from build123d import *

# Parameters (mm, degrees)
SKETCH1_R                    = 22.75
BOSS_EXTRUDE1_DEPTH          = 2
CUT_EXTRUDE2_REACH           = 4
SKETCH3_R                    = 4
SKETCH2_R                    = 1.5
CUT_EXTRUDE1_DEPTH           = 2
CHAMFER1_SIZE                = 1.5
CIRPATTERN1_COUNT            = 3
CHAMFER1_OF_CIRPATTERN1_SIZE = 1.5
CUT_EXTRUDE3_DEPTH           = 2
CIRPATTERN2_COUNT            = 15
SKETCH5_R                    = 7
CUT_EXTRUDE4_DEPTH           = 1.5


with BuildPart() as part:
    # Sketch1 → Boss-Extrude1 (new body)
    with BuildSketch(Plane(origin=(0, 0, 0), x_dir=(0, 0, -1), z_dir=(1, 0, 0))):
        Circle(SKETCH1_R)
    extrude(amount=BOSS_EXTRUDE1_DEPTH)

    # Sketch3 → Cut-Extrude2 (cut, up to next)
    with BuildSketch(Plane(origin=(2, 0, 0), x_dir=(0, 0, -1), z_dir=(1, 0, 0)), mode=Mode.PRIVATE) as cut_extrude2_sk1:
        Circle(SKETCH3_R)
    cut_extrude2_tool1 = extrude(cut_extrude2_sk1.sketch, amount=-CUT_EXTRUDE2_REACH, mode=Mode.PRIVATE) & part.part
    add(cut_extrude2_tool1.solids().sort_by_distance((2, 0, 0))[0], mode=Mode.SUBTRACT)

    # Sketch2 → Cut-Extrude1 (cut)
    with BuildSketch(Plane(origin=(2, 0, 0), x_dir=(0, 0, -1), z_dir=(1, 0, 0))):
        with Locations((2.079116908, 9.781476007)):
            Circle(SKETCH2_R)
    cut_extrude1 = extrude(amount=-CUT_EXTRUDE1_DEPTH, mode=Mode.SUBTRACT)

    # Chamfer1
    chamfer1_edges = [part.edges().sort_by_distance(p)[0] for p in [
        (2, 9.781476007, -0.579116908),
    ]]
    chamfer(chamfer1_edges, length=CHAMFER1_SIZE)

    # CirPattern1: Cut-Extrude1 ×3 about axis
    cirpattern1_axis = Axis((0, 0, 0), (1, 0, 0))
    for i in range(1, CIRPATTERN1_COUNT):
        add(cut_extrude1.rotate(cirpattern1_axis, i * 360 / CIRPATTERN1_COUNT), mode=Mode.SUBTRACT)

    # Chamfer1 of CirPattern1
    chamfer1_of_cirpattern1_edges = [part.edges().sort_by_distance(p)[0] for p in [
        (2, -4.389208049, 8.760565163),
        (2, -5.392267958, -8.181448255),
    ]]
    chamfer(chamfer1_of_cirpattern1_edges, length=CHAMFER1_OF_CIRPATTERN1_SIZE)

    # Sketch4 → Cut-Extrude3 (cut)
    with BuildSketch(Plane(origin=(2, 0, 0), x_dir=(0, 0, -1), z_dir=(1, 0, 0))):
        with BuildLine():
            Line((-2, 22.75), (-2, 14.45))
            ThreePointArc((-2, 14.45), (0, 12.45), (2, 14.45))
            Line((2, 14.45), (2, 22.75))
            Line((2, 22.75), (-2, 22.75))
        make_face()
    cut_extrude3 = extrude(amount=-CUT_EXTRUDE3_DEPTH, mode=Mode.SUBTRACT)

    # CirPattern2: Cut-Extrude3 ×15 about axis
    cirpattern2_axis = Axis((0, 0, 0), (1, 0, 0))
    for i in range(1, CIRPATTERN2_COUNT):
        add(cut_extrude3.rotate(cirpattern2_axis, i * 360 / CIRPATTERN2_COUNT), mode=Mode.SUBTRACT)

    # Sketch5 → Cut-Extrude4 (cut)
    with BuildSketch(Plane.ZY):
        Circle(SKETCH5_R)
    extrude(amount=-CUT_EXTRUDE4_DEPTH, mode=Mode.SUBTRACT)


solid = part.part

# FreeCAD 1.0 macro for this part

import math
import FreeCAD as App
import Part
import Sketcher
from FreeCAD import Vector
Q = App.Units.Quantity


def edges_at(feature, points):
    """Names of the edges that pass closest to the given points."""
    edges = feature.Shape.Edges
    near = lambda p: min(range(len(edges)), key=lambda i: edges[i].distToShape(Part.Vertex(*p))[0])
    return sorted({f"Edge{near(p) + 1}" for p in points})

doc = App.newDocument("Part")
body = doc.addObject("PartDesign::Body", "Body")

sketch1 = body.newObject("Sketcher::SketchObject", "Sketch")
sketch1.AttachmentSupport = (doc.getObject("YZ_Plane"), [""])
sketch1.MapMode = "FlatFace"
sketch1.addGeometry(Part.Circle(Vector(0, 0, 0), Vector(0, 0, 1), 22.75), False)
sketch1.addConstraint(Sketcher.Constraint("Coincident", 0, 3, -1, 1))
sketch1.addConstraint(Sketcher.Constraint("Diameter", 0, Q("45.5 mm")))
pad1 = body.newObject("PartDesign::Pad", "Pad")
pad1.Profile = sketch1
pad1.Length = 2

sketch2 = body.newObject("Sketcher::SketchObject", "Sketch001")
sketch2.AttachmentSupport = (doc.getObject("YZ_Plane"), [""])
sketch2.MapMode = "FlatFace"
sketch2.AttachmentOffset = App.Placement(Vector(0, 0, 2), App.Rotation())
sketch2.addGeometry(Part.Circle(Vector(0, 0, 0), Vector(0, 0, 1), 4), False)
sketch2.addConstraint(Sketcher.Constraint("Coincident", 0, 3, -1, 1))
sketch2.addConstraint(Sketcher.Constraint("Diameter", 0, Q("8 mm")))
pocket1 = body.newObject("PartDesign::Pocket", "Pocket")
pocket1.Profile = sketch2
pocket1.Type = "UpToFirst"

sketch3 = body.newObject("Sketcher::SketchObject", "Sketch002")
sketch3.AttachmentSupport = (doc.getObject("YZ_Plane"), [""])
sketch3.MapMode = "FlatFace"
sketch3.AttachmentOffset = App.Placement(Vector(0, 0, 2), App.Rotation())
sketch3.addGeometry(Part.Circle(Vector(9.781476, -2.079117, 0), Vector(0, 0, 1), 1.5), False)
sketch3.addConstraint(Sketcher.Constraint("Diameter", 0, Q("3 mm")))
sketch3.addConstraint(Sketcher.Constraint("DistanceX", -1, 1, 0, 3, Q("9.781476 mm")))
sketch3.addConstraint(Sketcher.Constraint("DistanceY", 0, 3, -1, 1, Q("2.079117 mm")))
pocket2 = body.newObject("PartDesign::Pocket", "Pocket001")
pocket2.Profile = sketch3
pocket2.Length = 2
doc.recompute()

chamfer = body.newObject("PartDesign::Chamfer", "Chamfer")
chamfer.Base = (pocket2, edges_at(pocket2, [(2, 9.781, -0.579)]))
chamfer.Size = 1.5
doc.recompute()

polarpattern = body.newObject("PartDesign::PolarPattern", "PolarPattern")
polarpattern.Originals = [pocket2]
polarpattern.Axis = (doc.getObject("X_Axis"), [""])
polarpattern.Angle = 360
polarpattern.Occurrences = 3
body.Tip = polarpattern
doc.recompute()

chamfer2 = body.newObject("PartDesign::Chamfer", "Chamfer001")
chamfer2.Base = (polarpattern, edges_at(polarpattern, [(2, -4.389, 8.761), (2, -5.392, -8.181)]))
chamfer2.Size = 1.5

sketch4 = body.newObject("Sketcher::SketchObject", "Sketch003")
sketch4.AttachmentSupport = (doc.getObject("YZ_Plane"), [""])
sketch4.MapMode = "FlatFace"
sketch4.AttachmentOffset = App.Placement(Vector(0, 0, 2), App.Rotation())
sketch4.addGeometry(Part.LineSegment(Vector(22.75, 2, 0), Vector(14.45, 2, 0)), False)
sketch4.addGeometry(Part.ArcOfCircle(Part.Circle(Vector(14.45, 0, 0), Vector(0, 0, 1), 2), math.radians(90), math.radians(270)), False)
sketch4.addGeometry(Part.LineSegment(Vector(14.45, -2, 0), Vector(22.75, -2, 0)), False)
sketch4.addGeometry(Part.LineSegment(Vector(22.75, -2, 0), Vector(22.75, 2, 0)), False)
sketch4.addConstraint(Sketcher.Constraint("Tangent", 0, 2, 1, 1))
sketch4.addConstraint(Sketcher.Constraint("Tangent", 1, 2, 2, 1))
sketch4.addConstraint(Sketcher.Constraint("Coincident", 2, 2, 3, 1))
sketch4.addConstraint(Sketcher.Constraint("Coincident", 3, 2, 0, 1))
sketch4.addConstraint(Sketcher.Constraint("Horizontal", 0))
sketch4.addConstraint(Sketcher.Constraint("Horizontal", 2))
sketch4.addConstraint(Sketcher.Constraint("Vertical", 3))
sketch4.addConstraint(Sketcher.Constraint("PointOnObject", 1, 3, -1))
sketch4.addConstraint(Sketcher.Constraint("Radius", 1, Q("2 mm")))
sketch4.addConstraint(Sketcher.Constraint("DistanceX", 0, 2, 0, 1, Q("8.3 mm")))
sketch4.addConstraint(Sketcher.Constraint("DistanceX", -1, 1, 1, 3, Q("14.45 mm")))
pocket3 = body.newObject("PartDesign::Pocket", "Pocket002")
pocket3.Profile = sketch4
pocket3.Length = 2
doc.recompute()

polarpattern2 = body.newObject("PartDesign::PolarPattern", "PolarPattern001")
polarpattern2.Originals = [pocket3]
polarpattern2.Axis = (doc.getObject("X_Axis"), [""])
polarpattern2.Angle = 360
polarpattern2.Occurrences = 15
body.Tip = polarpattern2

sketch5 = body.newObject("Sketcher::SketchObject", "Sketch004")
sketch5.AttachmentSupport = (doc.getObject("YZ_Plane"), [""])
sketch5.MapMode = "FlatFace"
sketch5.addGeometry(Part.Circle(Vector(0, 0, 0), Vector(0, 0, 1), 7), False)
sketch5.addConstraint(Sketcher.Constraint("Coincident", 0, 3, -1, 1))
sketch5.addConstraint(Sketcher.Constraint("Diameter", 0, Q("14 mm")))
pocket4 = body.newObject("PartDesign::Pocket", "Pocket003")
pocket4.Profile = sketch5
pocket4.Length = 1.5
pocket4.Reversed = True

doc.recompute()
